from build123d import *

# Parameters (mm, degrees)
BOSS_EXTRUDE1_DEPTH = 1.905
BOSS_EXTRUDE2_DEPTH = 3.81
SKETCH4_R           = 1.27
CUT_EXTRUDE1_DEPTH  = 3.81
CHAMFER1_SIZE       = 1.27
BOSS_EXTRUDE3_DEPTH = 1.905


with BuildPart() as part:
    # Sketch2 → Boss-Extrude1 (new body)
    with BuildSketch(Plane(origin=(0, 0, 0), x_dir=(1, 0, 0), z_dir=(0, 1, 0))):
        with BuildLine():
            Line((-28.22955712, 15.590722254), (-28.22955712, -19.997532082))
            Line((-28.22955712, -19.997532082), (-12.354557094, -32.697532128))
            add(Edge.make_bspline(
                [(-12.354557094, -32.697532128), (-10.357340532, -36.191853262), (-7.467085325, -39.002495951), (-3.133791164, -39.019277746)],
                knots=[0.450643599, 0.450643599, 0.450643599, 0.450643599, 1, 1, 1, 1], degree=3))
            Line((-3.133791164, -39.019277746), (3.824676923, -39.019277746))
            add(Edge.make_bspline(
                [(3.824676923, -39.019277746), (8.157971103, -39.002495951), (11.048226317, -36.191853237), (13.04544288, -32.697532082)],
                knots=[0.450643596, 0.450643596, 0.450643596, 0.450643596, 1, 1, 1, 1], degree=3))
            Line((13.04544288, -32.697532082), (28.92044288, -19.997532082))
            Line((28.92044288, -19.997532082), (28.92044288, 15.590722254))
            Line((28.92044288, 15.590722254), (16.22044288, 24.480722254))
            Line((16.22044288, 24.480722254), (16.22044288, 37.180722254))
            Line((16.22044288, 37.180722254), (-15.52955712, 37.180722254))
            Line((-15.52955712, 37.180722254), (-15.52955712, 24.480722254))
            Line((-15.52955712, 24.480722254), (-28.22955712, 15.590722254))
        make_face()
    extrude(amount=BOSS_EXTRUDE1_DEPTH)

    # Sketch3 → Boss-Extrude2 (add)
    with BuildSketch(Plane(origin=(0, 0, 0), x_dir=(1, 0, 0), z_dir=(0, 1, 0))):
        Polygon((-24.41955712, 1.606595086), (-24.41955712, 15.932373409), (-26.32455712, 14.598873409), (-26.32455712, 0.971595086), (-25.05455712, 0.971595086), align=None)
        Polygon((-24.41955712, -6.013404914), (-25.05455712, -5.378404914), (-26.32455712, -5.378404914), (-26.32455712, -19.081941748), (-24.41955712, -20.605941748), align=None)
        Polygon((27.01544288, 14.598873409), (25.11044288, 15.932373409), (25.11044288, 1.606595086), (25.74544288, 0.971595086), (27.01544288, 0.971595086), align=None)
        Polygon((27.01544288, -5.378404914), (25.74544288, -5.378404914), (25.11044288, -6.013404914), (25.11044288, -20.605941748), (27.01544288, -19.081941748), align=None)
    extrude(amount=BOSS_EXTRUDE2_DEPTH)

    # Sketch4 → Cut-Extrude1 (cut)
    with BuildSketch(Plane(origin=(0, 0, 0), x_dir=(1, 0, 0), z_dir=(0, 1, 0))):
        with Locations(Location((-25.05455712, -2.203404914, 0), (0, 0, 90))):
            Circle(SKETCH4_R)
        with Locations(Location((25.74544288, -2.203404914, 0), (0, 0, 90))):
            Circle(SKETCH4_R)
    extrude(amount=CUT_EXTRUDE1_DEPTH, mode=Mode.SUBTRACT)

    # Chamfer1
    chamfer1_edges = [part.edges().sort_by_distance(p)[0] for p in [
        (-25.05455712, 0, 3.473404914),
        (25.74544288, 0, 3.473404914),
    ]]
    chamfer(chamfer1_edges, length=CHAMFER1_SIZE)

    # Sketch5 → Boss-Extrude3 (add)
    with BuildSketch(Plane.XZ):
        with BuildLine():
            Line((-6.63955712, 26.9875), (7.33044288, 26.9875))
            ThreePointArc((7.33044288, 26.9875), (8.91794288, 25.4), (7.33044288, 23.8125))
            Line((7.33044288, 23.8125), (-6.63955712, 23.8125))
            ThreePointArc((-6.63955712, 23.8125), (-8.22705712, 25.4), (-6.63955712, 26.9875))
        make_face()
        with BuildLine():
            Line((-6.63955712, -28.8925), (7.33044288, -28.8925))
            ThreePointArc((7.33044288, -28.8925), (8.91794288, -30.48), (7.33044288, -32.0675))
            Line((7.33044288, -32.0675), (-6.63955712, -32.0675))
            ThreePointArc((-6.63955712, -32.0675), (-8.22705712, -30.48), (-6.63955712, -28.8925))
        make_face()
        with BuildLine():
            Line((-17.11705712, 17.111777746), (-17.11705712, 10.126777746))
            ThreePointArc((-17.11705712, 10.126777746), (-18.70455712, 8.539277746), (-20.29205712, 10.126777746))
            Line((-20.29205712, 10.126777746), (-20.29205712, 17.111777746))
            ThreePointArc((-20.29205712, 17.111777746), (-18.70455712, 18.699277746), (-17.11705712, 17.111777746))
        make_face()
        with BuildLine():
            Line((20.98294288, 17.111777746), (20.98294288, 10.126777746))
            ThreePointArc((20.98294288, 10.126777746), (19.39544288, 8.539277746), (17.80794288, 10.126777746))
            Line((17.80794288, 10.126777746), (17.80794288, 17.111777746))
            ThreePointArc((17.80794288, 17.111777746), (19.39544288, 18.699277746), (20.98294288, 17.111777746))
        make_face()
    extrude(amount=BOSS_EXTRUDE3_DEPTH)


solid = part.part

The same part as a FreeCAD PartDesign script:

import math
import FreeCAD as App
import Part
import Sketcher
from FreeCAD import Vector
Q = App.Units.Quantity


def edges_at(feature, points):
    """Names of the edges that pass closest to the given points."""
    edges = feature.Shape.Edges
    near = lambda p: min(range(len(edges)), key=lambda i: edges[i].distToShape(Part.Vertex(*p))[0])
    return sorted({f"Edge{near(p) + 1}" for p in points})


def add_polygon(sketch, points):
    """Adds a closed chain of lines whose ends are joined by coincident constraints."""
    first, n = sketch.GeometryCount, len(points)
    for a, b in zip(points, points[1:] + points[:1]):
        sketch.addGeometry(Part.LineSegment(App.Vector(*a, 0), App.Vector(*b, 0)), False)
    for i in range(n):
        sketch.addConstraint(Sketcher.Constraint("Coincident", first + i, 2, first + (i + 1) % n, 1))

doc = App.newDocument("Part")
body = doc.addObject("PartDesign::Body", "Body")

sketch1 = body.newObject("Sketcher::SketchObject", "Sketch")
sketch1.AttachmentSupport = (doc.getObject("XZ_Plane"), [""])
sketch1.MapMode = "FlatFace"
sketch1.addGeometry([
    Part.LineSegment(Vector(-28.229557, -15.590722, 0), Vector(-28.229557, 19.997532, 0)),
    Part.LineSegment(Vector(-28.229557, 19.997532, 0), Vector(-12.354557, 32.697532, 0)),
    Part.BSplineCurve([Vector(-12.354557, 32.697532, 0), Vector(-10.357341, 36.191853, 0), Vector(-7.467085, 39.002496, 0), Vector(-3.133791, 39.019278, 0)], [4, 4], [0.450643599, 1], False, 3, [1, 1, 1, 1], False),
    Part.LineSegment(Vector(-3.133791, 39.019278, 0), Vector(3.824677, 39.019278, 0)),
    Part.BSplineCurve([Vector(3.824677, 39.019278, 0), Vector(8.157971, 39.002496, 0), Vector(11.048226, 36.191853, 0), Vector(13.045443, 32.697532, 0)], [4, 4], [0.450643596, 1], False, 3, [1, 1, 1, 1], False),
    Part.LineSegment(Vector(13.045443, 32.697532, 0), Vector(28.920443, 19.997532, 0)),
    Part.LineSegment(Vector(28.920443, 19.997532, 0), Vector(28.920443, -15.590722, 0)),
    Part.LineSegment(Vector(28.920443, -15.590722, 0), Vector(16.220443, -24.480722, 0)),
    Part.LineSegment(Vector(16.220443, -24.480722, 0), Vector(16.220443, -37.180722, 0)),
    Part.LineSegment(Vector(16.220443, -37.180722, 0), Vector(-15.529557, -37.180722, 0)),
    Part.LineSegment(Vector(-15.529557, -37.180722, 0), Vector(-15.529557, -24.480722, 0)),
    Part.LineSegment(Vector(-15.529557, -24.480722, 0), Vector(-28.229557, -15.590722, 0)),
], False)
sketch1.addConstraint([
    Sketcher.Constraint("Block", 2),
    Sketcher.Constraint("Block", 4),
    Sketcher.Constraint("Coincident", 0, 2, 1, 1),
    Sketcher.Constraint("Coincident", 1, 2, 2, 1),
    Sketcher.Constraint("Coincident", 2, 2, 3, 1),
    Sketcher.Constraint("Coincident", 3, 2, 4, 1),
    Sketcher.Constraint("Coincident", 4, 2, 5, 1),
    Sketcher.Constraint("Coincident", 5, 2, 6, 1),
    Sketcher.Constraint("Coincident", 6, 2, 7, 1),
    Sketcher.Constraint("Coincident", 7, 2, 8, 1),
    Sketcher.Constraint("Coincident", 8, 2, 9, 1),
    Sketcher.Constraint("Coincident", 9, 2, 10, 1),
    Sketcher.Constraint("Coincident", 10, 2, 11, 1),
    Sketcher.Constraint("Coincident", 11, 2, 0, 1),
    Sketcher.Constraint("Vertical", 0),
    Sketcher.Constraint("Vertical", 6),
    Sketcher.Constraint("Vertical", 8),
    Sketcher.Constraint("Horizontal", 9),
    Sketcher.Constraint("Vertical", 10),
    Sketcher.Constraint("DistanceY", 8, 2, 8, 1, Q("0.5 in")),
    Sketcher.Constraint("DistanceY", 10, 1, 10, 2, Q("0.5 in")),
    Sketcher.Constraint("DistanceX", 9, 2, 9, 1, Q("1.25 in")),
    Sketcher.Constraint("DistanceY", 0, 2, 1, 2, Q("0.5 in")),
    Sketcher.Constraint("DistanceY", 5, 2, 1, 2, Q("0.5 in")),
    Sketcher.Constraint("DistanceX", 7, 2, 6, 2, Q("0.5 in")),
    Sketcher.Constraint("DistanceY", 7, 2, 3, 2, Q("2.5 in")),
    Sketcher.Constraint("DistanceX", 0, 2, 9, 2, Q("0.5 in")),
    Sketcher.Constraint("DistanceY", 6, 2, 3, 2, Q("2.15 in")),
    Sketcher.Constraint("DistanceY", 10, 2, 11, 2, Q("0.35 in")),
    Sketcher.Constraint("DistanceX", 0, 2, 1, 2, Q("0.625 in")),
])
pad1 = body.newObject("PartDesign::Pad", "Pad")
pad1.Profile = sketch1
pad1.Length = Q("0.075 in")
pad1.Reversed = True

sketch2 = body.newObject("Sketcher::SketchObject", "Sketch001")
sketch2.AttachmentSupport = (doc.getObject("XZ_Plane"), [""])
sketch2.MapMode = "FlatFace"
add_polygon(sketch2, [(-24.4, -1.6), (-24.4, -15.9), (-26.3, -14.6), (-26.3, -1), (-25.1, -1)])
add_polygon(sketch2, [(-24.4, 6), (-25.1, 5.4), (-26.3, 5.4), (-26.3, 19.1), (-24.4, 20.6)])
add_polygon(sketch2, [(27, -14.6), (25.1, -15.9), (25.1, -1.6), (25.7, -1), (27, -1)])
add_polygon(sketch2, [(27, 5.4), (25.7, 5.4), (25.1, 6), (25.1, 20.6), (27, 19.1)])
sketch2.addConstraint([
    Sketcher.Constraint("Vertical", 0),
    Sketcher.Constraint("Vertical", 2),
    Sketcher.Constraint("Horizontal", 3),
    Sketcher.Constraint("Horizontal", 6),
    Sketcher.Constraint("Vertical", 7),
    Sketcher.Constraint("Vertical", 9),
    Sketcher.Constraint("Vertical", 11),
    Sketcher.Constraint("Horizontal", 13),
    Sketcher.Constraint("Vertical", 14),
    Sketcher.Constraint("Horizontal", 15),
    Sketcher.Constraint("Vertical", 17),
    Sketcher.Constraint("Vertical", 19),
    Sketcher.Constraint("Perpendicular", 4, 5),
    Sketcher.Constraint("Parallel", 5, 12),
    Sketcher.Constraint("Perpendicular", 12, 16),
    Sketcher.Constraint("Horizontal", 0, 2, 10, 2),
    Sketcher.Constraint("Horizontal", 4, 2, 11, 2),
    Sketcher.Constraint("Horizontal", 3, 2, 12, 2),
    Sketcher.Constraint("Horizontal", 1, 2, 14, 2),
    Sketcher.Constraint("Horizontal", 6, 2, 15, 2),
    Sketcher.Constraint("Horizontal", 9, 2, 16, 2),
    Sketcher.Constraint("Horizontal", 8, 2, 17, 2),
    Sketcher.Constraint("Horizontal", 7, 2, 18, 2),
    Sketcher.Constraint("Vertical", 3, 2, 5, 2),
    Sketcher.Constraint("Vertical", 2, 2, 6, 2),
    Sketcher.Constraint("Vertical", 4, 2, 8, 2),
    Sketcher.Constraint("Vertical", 12, 2, 15, 2),
    Sketcher.Constraint("Vertical", 11, 2, 16, 2),
    Sketcher.Constraint("Vertical", 14, 2, 18, 2),
    Sketcher.Constraint("Equal", 6, 13),
    Sketcher.Constraint("DistanceX", 3, 2, 12, 2, Q("2 in")),
    Sketcher.Constraint("DistanceX", 3, 1, 3, 2, Q("0.05 in")),
    Sketcher.Constraint("DistanceY", 4, 2, 9, 2, Q("0.3 in")),
    Sketcher.Constraint("DistanceY", 3, 2, 5, 2, Q("0.25 in")),
    Sketcher.Constraint("DistanceY", 7, 2, 8, 2, Q("0.06 in")),
    Sketcher.Constraint("DistanceX", 0, 2, -1, 1, Q("0.9613999 in")),
    Sketcher.Constraint("DistanceY", 0, 2, 1, 2, Q("0.0525 in")),
    Sketcher.Constraint("DistanceY", 0, 2, 0, 1, 14.325778),
    Sketcher.Constraint("DistanceY", 7, 1, 7, 2, 13.703537),
    Sketcher.Constraint("DistanceY", -1, 1, 7, 2, 19.081942),
])
pad2 = body.newObject("PartDesign::Pad", "Pad001")
pad2.Profile = sketch2
pad2.Length = Q("0.15 in")
pad2.Reversed = True

sketch3 = body.newObject("Sketcher::SketchObject", "Sketch002")
sketch3.AttachmentSupport = (doc.getObject("XZ_Plane"), [""])
sketch3.MapMode = "FlatFace"
sketch3.addGeometry([
    Part.Circle(Vector(-25.1, 2.2, 0), Vector(0, 0, 1), 1.3),
    Part.Circle(Vector(25.7, 2.2, 0), Vector(0, 0, 1), 1.3),
], False)
sketch3.addConstraint([
    Sketcher.Constraint("Equal", 0, 1),
    Sketcher.Constraint("Horizontal", 0, 3, 1, 3),
    Sketcher.Constraint("Diameter", 0, Q("0.1 in")),
    Sketcher.Constraint("DistanceX", 0, 3, 1, 3, Q("2 in")),
    Sketcher.Constraint("DistanceX", 0, 3, -1, 1, Q("0.9863999 in")),
    Sketcher.Constraint("DistanceY", -1, 1, 0, 3, 2.203405),
])
pocket1 = body.newObject("PartDesign::Pocket", "Pocket")
pocket1.Profile = sketch3
pocket1.Length = Q("0.15 in")
doc.recompute()

chamfer = body.newObject("PartDesign::Chamfer", "Chamfer")
chamfer.Base = (pocket1, edges_at(pocket1, [(-25.055, 0, 3.473), (25.745, 0, 3.473)]))
chamfer.Size = Q("0.05 in")

sketch4 = body.newObject("Sketcher::SketchObject", "Sketch003")
sketch4.AttachmentSupport = (doc.getObject("XZ_Plane"), [""])
sketch4.MapMode = "FlatFace"
sketch4.addGeometry([
    Part.LineSegment(Vector(7.3, 27, 0), Vector(-6.6, 27, 0)),
    Part.ArcOfCircle(Part.Circle(Vector(-6.6, 25.4, 0), Vector(0, 0, 1), 1.6), math.radians(90), math.radians(270)),
    Part.LineSegment(Vector(-6.6, 23.8, 0), Vector(7.3, 23.8, 0)),
    Part.ArcOfCircle(Part.Circle(Vector(7.3, 25.4, 0), Vector(0, 0, 1), 1.6), math.radians(-90), math.radians(90)),
    Part.LineSegment(Vector(7.3, -28.9, 0), Vector(-6.6, -28.9, 0)),
    Part.ArcOfCircle(Part.Circle(Vector(-6.6, -30.5, 0), Vector(0, 0, 1), 1.6), math.radians(90), math.radians(270)),
    Part.LineSegment(Vector(-6.6, -32.1, 0), Vector(7.3, -32.1, 0)),
    Part.ArcOfCircle(Part.Circle(Vector(7.3, -30.5, 0), Vector(0, 0, 1), 1.6), math.radians(-90), math.radians(90)),
    Part.LineSegment(Vector(-17.1, 10.1, 0), Vector(-17.1, 17.1, 0)),
    Part.ArcOfCircle(Part.Circle(Vector(-18.7, 17.1, 0), Vector(0, 0, 1), 1.6), math.radians(0), math.radians(180)),
    Part.LineSegment(Vector(-20.3, 17.1, 0), Vector(-20.3, 10.1, 0)),
    Part.ArcOfCircle(Part.Circle(Vector(-18.7, 10.1, 0), Vector(0, 0, 1), 1.6), math.radians(180), math.radians(360)),
    Part.LineSegment(Vector(21, 10.1, 0), Vector(21, 17.1, 0)),
    Part.ArcOfCircle(Part.Circle(Vector(19.4, 17.1, 0), Vector(0, 0, 1), 1.6), math.radians(0), math.radians(180)),
    Part.LineSegment(Vector(17.8, 17.1, 0), Vector(17.8, 10.1, 0)),
    Part.ArcOfCircle(Part.Circle(Vector(19.4, 10.1, 0), Vector(0, 0, 1), 1.6), math.radians(180), math.radians(360)),
], False)
sketch4.addConstraint([
    Sketcher.Constraint("Tangent", 0, 2, 1, 1),
    Sketcher.Constraint("Tangent", 1, 2, 2, 1),
    Sketcher.Constraint("Tangent", 2, 2, 3, 1),
    Sketcher.Constraint("Tangent", 3, 2, 0, 1),
    Sketcher.Constraint("Tangent", 4, 2, 5, 1),
    Sketcher.Constraint("Tangent", 5, 2, 6, 1),
    Sketcher.Constraint("Tangent", 6, 2, 7, 1),
    Sketcher.Constraint("Tangent", 7, 2, 4, 1),
    Sketcher.Constraint("Tangent", 8, 2, 9, 1),
    Sketcher.Constraint("Tangent", 9, 2, 10, 1),
    Sketcher.Constraint("Tangent", 10, 2, 11, 1),
    Sketcher.Constraint("Tangent", 11, 2, 8, 1),
    Sketcher.Constraint("Tangent", 12, 2, 13, 1),
    Sketcher.Constraint("Tangent", 13, 2, 14, 1),
    Sketcher.Constraint("Tangent", 14, 2, 15, 1),
    Sketcher.Constraint("Tangent", 15, 2, 12, 1),
    Sketcher.Constraint("Horizontal", 0),
    Sketcher.Constraint("Horizontal", 2),
    Sketcher.Constraint("Horizontal", 4),
    Sketcher.Constraint("Horizontal", 6),
    Sketcher.Constraint("Vertical", 8),
    Sketcher.Constraint("Vertical", 10),
    Sketcher.Constraint("Vertical", 12),
    Sketcher.Constraint("Vertical", 14),
    Sketcher.Constraint("Equal", 3, 5),
    Sketcher.Constraint("Equal", 7, 9),
    Sketcher.Constraint("Equal", 11, 13),
    Sketcher.Constraint("Horizontal", 9, 3, 13, 3),
    Sketcher.Constraint("Horizontal", 11, 3, 15, 3),
    Sketcher.Constraint("Vertical", 1, 3, 5, 3),
    Sketcher.Constraint("Vertical", 3, 3, 7, 3),
    Sketcher.Constraint("DistanceY", -1, 1, 1, 3, Q("1 in")),
    Sketcher.Constraint("Radius", 1, Q("0.0625 in")),
    Sketcher.Constraint("DistanceX", 0, 2, 0, 1, Q("0.55 in")),
    Sketcher.Constraint("DistanceY", 5, 3, -1, 1, Q("1.2 in")),
    Sketcher.Constraint("DistanceX", 9, 3, 13, 3, Q("1.5 in")),
    Sketcher.Constraint("DistanceY", 8, 1, 8, 2, Q("0.275 in")),
    Sketcher.Constraint("DistanceX", 9, 3, 1, 3, Q("0.475 in")),
    Sketcher.Constraint("DistanceX", 1, 3, -1, 1, Q("0.2613999 in")),
    Sketcher.Constraint("DistanceY", -1, 1, 9, 3, 17.111778),
])
pad3 = body.newObject("PartDesign::Pad", "Pad002")
pad3.Profile = sketch4
pad3.Length = Q("0.075 in")

doc.recompute()
